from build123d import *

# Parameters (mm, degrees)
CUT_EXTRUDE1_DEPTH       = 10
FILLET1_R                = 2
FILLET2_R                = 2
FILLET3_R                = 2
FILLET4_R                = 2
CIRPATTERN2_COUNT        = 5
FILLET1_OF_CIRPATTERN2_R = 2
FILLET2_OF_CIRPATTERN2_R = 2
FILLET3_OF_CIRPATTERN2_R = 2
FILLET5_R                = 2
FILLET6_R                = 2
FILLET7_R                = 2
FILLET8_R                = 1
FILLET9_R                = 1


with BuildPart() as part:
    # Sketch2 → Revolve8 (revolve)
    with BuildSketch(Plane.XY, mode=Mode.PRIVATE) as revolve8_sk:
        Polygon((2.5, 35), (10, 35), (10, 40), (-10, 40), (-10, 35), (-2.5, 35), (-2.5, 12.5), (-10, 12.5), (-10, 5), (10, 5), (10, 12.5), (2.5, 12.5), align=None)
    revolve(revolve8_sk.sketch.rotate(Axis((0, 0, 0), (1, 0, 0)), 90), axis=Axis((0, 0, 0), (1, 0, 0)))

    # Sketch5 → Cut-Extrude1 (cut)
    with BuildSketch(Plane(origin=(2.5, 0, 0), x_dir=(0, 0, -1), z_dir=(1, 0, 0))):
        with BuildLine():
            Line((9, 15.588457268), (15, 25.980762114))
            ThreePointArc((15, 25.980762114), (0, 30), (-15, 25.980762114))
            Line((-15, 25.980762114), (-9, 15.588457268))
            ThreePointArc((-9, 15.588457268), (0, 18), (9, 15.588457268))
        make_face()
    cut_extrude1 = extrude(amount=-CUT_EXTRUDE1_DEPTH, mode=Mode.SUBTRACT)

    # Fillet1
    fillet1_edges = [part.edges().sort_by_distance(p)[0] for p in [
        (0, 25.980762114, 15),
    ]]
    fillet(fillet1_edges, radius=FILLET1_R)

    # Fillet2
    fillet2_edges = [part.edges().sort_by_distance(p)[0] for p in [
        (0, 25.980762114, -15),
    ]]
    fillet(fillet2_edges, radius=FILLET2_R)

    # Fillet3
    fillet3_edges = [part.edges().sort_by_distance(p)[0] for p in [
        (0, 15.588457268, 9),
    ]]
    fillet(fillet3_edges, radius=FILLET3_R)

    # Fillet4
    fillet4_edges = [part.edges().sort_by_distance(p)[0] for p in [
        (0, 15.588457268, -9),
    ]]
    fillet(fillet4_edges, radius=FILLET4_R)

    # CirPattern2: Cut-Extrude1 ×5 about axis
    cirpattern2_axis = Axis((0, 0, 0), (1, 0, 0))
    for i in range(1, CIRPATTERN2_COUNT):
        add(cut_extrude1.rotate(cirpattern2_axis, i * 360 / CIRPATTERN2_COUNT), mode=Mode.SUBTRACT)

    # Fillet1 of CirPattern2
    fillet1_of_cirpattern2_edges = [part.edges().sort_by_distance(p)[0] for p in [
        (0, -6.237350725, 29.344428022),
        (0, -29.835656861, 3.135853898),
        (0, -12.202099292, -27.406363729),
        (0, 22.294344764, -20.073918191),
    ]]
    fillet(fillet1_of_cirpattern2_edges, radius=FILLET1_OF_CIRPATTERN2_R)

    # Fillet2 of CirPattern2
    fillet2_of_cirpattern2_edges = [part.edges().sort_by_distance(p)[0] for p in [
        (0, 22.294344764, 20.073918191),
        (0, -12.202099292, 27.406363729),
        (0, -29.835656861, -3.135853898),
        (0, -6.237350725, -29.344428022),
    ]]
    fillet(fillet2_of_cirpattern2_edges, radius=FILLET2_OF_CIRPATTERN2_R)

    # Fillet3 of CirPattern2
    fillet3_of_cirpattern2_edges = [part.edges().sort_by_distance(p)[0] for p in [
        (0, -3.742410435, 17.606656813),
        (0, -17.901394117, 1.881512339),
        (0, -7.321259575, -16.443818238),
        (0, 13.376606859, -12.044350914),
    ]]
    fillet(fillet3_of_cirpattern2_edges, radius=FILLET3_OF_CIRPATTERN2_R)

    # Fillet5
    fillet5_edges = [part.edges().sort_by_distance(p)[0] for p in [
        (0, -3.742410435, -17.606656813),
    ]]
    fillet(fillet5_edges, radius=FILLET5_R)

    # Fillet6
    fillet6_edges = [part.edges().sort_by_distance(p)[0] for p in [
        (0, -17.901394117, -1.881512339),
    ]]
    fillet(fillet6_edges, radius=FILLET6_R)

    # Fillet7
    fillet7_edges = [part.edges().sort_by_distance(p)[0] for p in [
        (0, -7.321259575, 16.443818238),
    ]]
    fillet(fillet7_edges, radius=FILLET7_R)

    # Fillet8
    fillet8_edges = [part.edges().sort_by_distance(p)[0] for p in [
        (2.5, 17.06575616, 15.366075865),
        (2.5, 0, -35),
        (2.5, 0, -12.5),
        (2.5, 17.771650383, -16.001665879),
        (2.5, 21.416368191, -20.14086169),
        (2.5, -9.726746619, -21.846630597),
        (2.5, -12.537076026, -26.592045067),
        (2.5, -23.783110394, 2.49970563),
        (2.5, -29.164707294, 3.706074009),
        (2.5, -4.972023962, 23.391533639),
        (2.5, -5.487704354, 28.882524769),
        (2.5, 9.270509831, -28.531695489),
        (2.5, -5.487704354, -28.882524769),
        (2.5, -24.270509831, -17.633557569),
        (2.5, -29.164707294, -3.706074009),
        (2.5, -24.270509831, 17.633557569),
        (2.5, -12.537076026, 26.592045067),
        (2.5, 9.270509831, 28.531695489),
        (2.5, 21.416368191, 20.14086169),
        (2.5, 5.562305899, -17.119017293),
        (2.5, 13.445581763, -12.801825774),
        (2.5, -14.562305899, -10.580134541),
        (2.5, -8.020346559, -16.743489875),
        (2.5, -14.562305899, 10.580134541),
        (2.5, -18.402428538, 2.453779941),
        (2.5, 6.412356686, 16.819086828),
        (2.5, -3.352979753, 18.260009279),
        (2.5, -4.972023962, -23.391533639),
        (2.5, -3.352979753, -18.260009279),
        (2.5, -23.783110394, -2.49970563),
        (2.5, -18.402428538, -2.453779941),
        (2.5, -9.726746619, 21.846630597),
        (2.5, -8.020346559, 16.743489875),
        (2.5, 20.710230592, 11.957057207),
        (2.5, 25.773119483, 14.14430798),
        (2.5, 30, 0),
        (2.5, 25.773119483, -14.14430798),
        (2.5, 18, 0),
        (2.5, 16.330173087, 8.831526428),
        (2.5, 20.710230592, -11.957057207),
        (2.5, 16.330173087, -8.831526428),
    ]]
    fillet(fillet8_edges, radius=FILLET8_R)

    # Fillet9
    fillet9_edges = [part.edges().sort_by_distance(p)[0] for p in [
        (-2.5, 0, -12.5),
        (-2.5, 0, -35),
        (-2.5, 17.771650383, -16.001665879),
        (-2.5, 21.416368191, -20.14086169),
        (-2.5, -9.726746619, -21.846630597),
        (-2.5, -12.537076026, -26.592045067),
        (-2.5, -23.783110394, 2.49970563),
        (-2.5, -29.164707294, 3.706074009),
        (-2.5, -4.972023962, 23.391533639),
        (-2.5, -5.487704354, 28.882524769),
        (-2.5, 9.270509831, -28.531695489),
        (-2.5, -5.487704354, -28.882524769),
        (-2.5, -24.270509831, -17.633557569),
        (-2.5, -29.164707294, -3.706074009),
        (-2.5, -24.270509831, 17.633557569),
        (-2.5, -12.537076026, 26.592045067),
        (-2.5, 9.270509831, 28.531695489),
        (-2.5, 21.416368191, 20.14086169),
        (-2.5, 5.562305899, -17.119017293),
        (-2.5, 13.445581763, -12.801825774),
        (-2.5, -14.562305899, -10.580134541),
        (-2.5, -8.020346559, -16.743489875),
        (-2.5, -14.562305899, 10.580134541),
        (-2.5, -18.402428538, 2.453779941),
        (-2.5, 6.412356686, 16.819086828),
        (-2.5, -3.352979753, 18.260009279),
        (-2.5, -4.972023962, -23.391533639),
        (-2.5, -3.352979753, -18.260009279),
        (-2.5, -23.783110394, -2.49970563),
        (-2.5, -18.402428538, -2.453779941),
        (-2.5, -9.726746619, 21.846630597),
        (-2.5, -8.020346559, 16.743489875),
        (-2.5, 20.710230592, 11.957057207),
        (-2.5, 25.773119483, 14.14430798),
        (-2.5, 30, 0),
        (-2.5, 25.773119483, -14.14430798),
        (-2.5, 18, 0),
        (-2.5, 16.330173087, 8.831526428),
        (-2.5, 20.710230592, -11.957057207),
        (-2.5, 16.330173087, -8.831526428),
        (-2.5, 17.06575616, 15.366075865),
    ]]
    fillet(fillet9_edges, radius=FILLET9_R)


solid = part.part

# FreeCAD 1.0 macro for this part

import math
import FreeCAD as App
import Part
import Sketcher

V = App.Vector
Q = App.Units.Quantity


def edges_at(feature, points):
    """Names of the edges that pass closest to the given points."""
    edges = feature.Shape.Edges
    near = lambda p: min(range(len(edges)), key=lambda i: edges[i].distToShape(Part.Vertex(*p))[0])
    return sorted({f"Edge{near(p) + 1}" for p in points})

doc = App.newDocument("Part")
body = doc.addObject("PartDesign::Body", "Body")

sketch1 = body.newObject("Sketcher::SketchObject", "Sketch")
sketch1.AttachmentSupport = (doc.getObject("XY_Plane"), [""])
sketch1.MapMode = "FlatFace"
sketch1.addGeometry(Part.LineSegment(V(2, 35, 0), V(10, 35, 0)), False)
sketch1.addGeometry(Part.LineSegment(V(10, 35, 0), V(10, 40, 0)), False)
sketch1.addGeometry(Part.LineSegment(V(10, 40, 0), V(-10, 40, 0)), False)
sketch1.addGeometry(Part.LineSegment(V(-10, 40, 0), V(-10, 35, 0)), False)
sketch1.addGeometry(Part.LineSegment(V(-10, 35, 0), V(-2, 35, 0)), False)
sketch1.addGeometry(Part.LineSegment(V(-2, 35, 0), V(-2, 12, 0)), False)
sketch1.addGeometry(Part.LineSegment(V(-2, 12, 0), V(-10, 12, 0)), False)
sketch1.addGeometry(Part.LineSegment(V(-10, 12, 0), V(-10, 5, 0)), False)
sketch1.addGeometry(Part.LineSegment(V(-10, 5, 0), V(10, 5, 0)), False)
sketch1.addGeometry(Part.LineSegment(V(10, 5, 0), V(10, 12, 0)), False)
sketch1.addGeometry(Part.LineSegment(V(10, 12, 0), V(2, 12, 0)), False)
sketch1.addGeometry(Part.LineSegment(V(2, 12, 0), V(2, 35, 0)), False)
sketch1.addConstraint(Sketcher.Constraint("Coincident", 0, 2, 1, 1))
sketch1.addConstraint(Sketcher.Constraint("Coincident", 1, 2, 2, 1))
sketch1.addConstraint(Sketcher.Constraint("Coincident", 2, 2, 3, 1))
sketch1.addConstraint(Sketcher.Constraint("Coincident", 3, 2, 4, 1))
sketch1.addConstraint(Sketcher.Constraint("Coincident", 4, 2, 5, 1))
sketch1.addConstraint(Sketcher.Constraint("Coincident", 5, 2, 6, 1))
sketch1.addConstraint(Sketcher.Constraint("Coincident", 6, 2, 7, 1))
sketch1.addConstraint(Sketcher.Constraint("Coincident", 7, 2, 8, 1))
sketch1.addConstraint(Sketcher.Constraint("Coincident", 8, 2, 9, 1))
sketch1.addConstraint(Sketcher.Constraint("Coincident", 9, 2, 10, 1))
sketch1.addConstraint(Sketcher.Constraint("Coincident", 10, 2, 11, 1))
sketch1.addConstraint(Sketcher.Constraint("Coincident", 11, 2, 0, 1))
sketch1.addConstraint(Sketcher.Constraint("Horizontal", 0))
sketch1.addConstraint(Sketcher.Constraint("Vertical", 1))
sketch1.addConstraint(Sketcher.Constraint("Horizontal", 2))
sketch1.addConstraint(Sketcher.Constraint("Vertical", 3))
sketch1.addConstraint(Sketcher.Constraint("Horizontal", 4))
sketch1.addConstraint(Sketcher.Constraint("Vertical", 5))
sketch1.addConstraint(Sketcher.Constraint("Horizontal", 6))
sketch1.addConstraint(Sketcher.Constraint("Vertical", 7))
sketch1.addConstraint(Sketcher.Constraint("Horizontal", 8))
sketch1.addConstraint(Sketcher.Constraint("Vertical", 9))
sketch1.addConstraint(Sketcher.Constraint("Horizontal", 10))
sketch1.addConstraint(Sketcher.Constraint("Vertical", 11))
sketch1.addConstraint(Sketcher.Constraint("Symmetric", 0, 2, 3, 2, -2))
sketch1.addConstraint(Sketcher.Constraint("Symmetric", 6, 2, 9, 2, -2))
sketch1.addConstraint(Sketcher.Constraint("Vertical", 3, 2, 6, 2))
sketch1.addConstraint(Sketcher.Constraint("Equal", 0, 4))
sketch1.addConstraint(Sketcher.Constraint("Equal", 10, 7))
sketch1.addConstraint(Sketcher.Constraint("DistanceX", 2, 2, 2, 1, 20.0))
sketch1.addConstraint(Sketcher.Constraint("DistanceY", 1, 1, 1, 2, 5.0))
sketch1.addConstraint(Sketcher.Constraint("DistanceX", 0, 1, 0, 2, 7.5))
sketch1.addConstraint(Sketcher.Constraint("DistanceY", 5, 2, 5, 1, 22.5))
sketch1.addConstraint(Sketcher.Constraint("DistanceY", -1, 1, 0, 2, 35.0))
revolution = body.newObject("PartDesign::Revolution", "Revolution")
revolution.Profile = sketch1
revolution.ReferenceAxis = (sketch1, ["H_Axis"])
revolution.Angle = 360

sketch2 = body.newObject("Sketcher::SketchObject", "Sketch001")
sketch2.AttachmentSupport = (doc.getObject("YZ_Plane"), [""])
sketch2.MapMode = "FlatFace"
sketch2.AttachmentOffset = App.Placement(V(0, 0, 2.5), App.Rotation())
sketch2.addGeometry(Part.LineSegment(V(16, -9, 0), V(26, -15, 0)), False)
sketch2.addGeometry(Part.ArcOfCircle(Part.Circle(V(0, 0, 0), V(0, 0, 1), 30), math.radians(-30), math.radians(30)), False)
sketch2.addGeometry(Part.LineSegment(V(26, 15, 0), V(16, 9, 0)), False)
sketch2.addGeometry(Part.ArcOfCircle(Part.Circle(V(0, 0, 0), V(0, 0, 1), 18), math.radians(-30), math.radians(30)), False)
sketch2.addConstraint(Sketcher.Constraint("Coincident", 0, 2, 1, 1))
sketch2.addConstraint(Sketcher.Constraint("Coincident", 1, 2, 2, 1))
sketch2.addConstraint(Sketcher.Constraint("Coincident", 2, 2, 3, 2))
sketch2.addConstraint(Sketcher.Constraint("Coincident", 3, 1, 0, 1))
sketch2.addConstraint(Sketcher.Constraint("Coincident", 1, 3, -1, 1))
sketch2.addConstraint(Sketcher.Constraint("Coincident", 3, 3, -1, 1))
sketch2.addConstraint(Sketcher.Constraint("Vertical", 0, 2, 1, 2))
sketch2.addConstraint(Sketcher.Constraint("Vertical", 2, 2, 3, 1))
sketch2.addConstraint(Sketcher.Constraint("Radius", 1, 30.0))
sketch2.addConstraint(Sketcher.Constraint("Radius", 3, 18.0))
sketch2.addConstraint(Sketcher.Constraint("Angle", 0, Q("-30 deg")))
sketch2.addConstraint(Sketcher.Constraint("DistanceY", 0, 2, -1, 1, 15.0))
pocket1 = body.newObject("PartDesign::Pocket", "Pocket")
pocket1.Profile = sketch2
pocket1.Length = 10
doc.recompute()

fillet = body.newObject("PartDesign::Fillet", "Fillet")
fillet.Base = (pocket1, edges_at(pocket1, [(0, 25.981, 15)]))
fillet.Radius = 2
doc.recompute()

fillet2 = body.newObject("PartDesign::Fillet", "Fillet001")
fillet2.Base = (fillet, edges_at(fillet, [(0, 25.981, -15)]))
fillet2.Radius = 2
doc.recompute()

fillet3 = body.newObject("PartDesign::Fillet", "Fillet002")
fillet3.Base = (fillet2, edges_at(fillet2, [(0, 15.588, 9)]))
fillet3.Radius = 2
doc.recompute()

fillet4 = body.newObject("PartDesign::Fillet", "Fillet003")
fillet4.Base = (fillet3, edges_at(fillet3, [(0, 15.588, -9)]))
fillet4.Radius = 2
doc.recompute()

polarpattern = body.newObject("PartDesign::PolarPattern", "PolarPattern")
polarpattern.Originals = [pocket1]
polarpattern.Axis = (doc.getObject("X_Axis"), [""])
polarpattern.Angle = 360
polarpattern.Occurrences = 5
body.Tip = polarpattern
doc.recompute()

fillet5 = body.newObject("PartDesign::Fillet", "Fillet004")
fillet5.Base = (polarpattern, edges_at(polarpattern, [
    (0, -6.237, 29.344),
    (0, -29.836, 3.136),
    (0, -12.202, -27.406),
    (0, 22.294, -20.074),
]))
fillet5.Radius = 2
doc.recompute()

fillet6 = body.newObject("PartDesign::Fillet", "Fillet005")
fillet6.Base = (fillet5, edges_at(fillet5, [
    (0, 22.294, 20.074),
    (0, -12.202, 27.406),
    (0, -29.836, -3.136),
    (0, -6.237, -29.344),
]))
fillet6.Radius = 2
doc.recompute()

fillet7 = body.newObject("PartDesign::Fillet", "Fillet006")
fillet7.Base = (fillet6, edges_at(fillet6, [
    (0, -3.742, 17.607),
    (0, -17.901, 1.882),
    (0, -7.321, -16.444),
    (0, 13.377, -12.044),
]))
fillet7.Radius = 2
doc.recompute()

fillet8 = body.newObject("PartDesign::Fillet", "Fillet007")
fillet8.Base = (fillet7, edges_at(fillet7, [(0, -3.742, -17.607)]))
fillet8.Radius = 2
doc.recompute()

fillet9 = body.newObject("PartDesign::Fillet", "Fillet008")
fillet9.Base = (fillet8, edges_at(fillet8, [(0, -17.901, -1.882)]))
fillet9.Radius = 2
doc.recompute()

fillet10 = body.newObject("PartDesign::Fillet", "Fillet009")
fillet10.Base = (fillet9, edges_at(fillet9, [(0, -7.321, 16.444)]))
fillet10.Radius = 2
doc.recompute()

fillet11 = body.newObject("PartDesign::Fillet", "Fillet010")
fillet11.Base = (fillet10, edges_at(fillet10, [
    (2.5, 17.066, 15.366),
    (2.5, 0, -35),
    (2.5, 0, -12.5),
    (2.5, 17.772, -16.002),
    (2.5, 21.416, -20.141),
    (2.5, -9.727, -21.847),
    (2.5, -12.537, -26.592),
    (2.5, -23.783, 2.5),
    (2.5, -29.165, 3.706),
    (2.5, -4.972, 23.392),
    (2.5, -5.488, 28.883),
    (2.5, 9.271, -28.532),
    (2.5, -5.488, -28.883),
    (2.5, -24.271, -17.634),
    (2.5, -29.165, -3.706),
    (2.5, -24.271, 17.634),
    (2.5, -12.537, 26.592),
    (2.5, 9.271, 28.532),
    (2.5, 21.416, 20.141),
    (2.5, 5.562, -17.119),
    (2.5, 13.446, -12.802),
    (2.5, -14.562, -10.58),
    (2.5, -8.02, -16.743),
    (2.5, -14.562, 10.58),
    (2.5, -18.402, 2.454),
    (2.5, 6.412, 16.819),
    (2.5, -3.353, 18.26),
    (2.5, -4.972, -23.392),
    (2.5, -3.353, -18.26),
    (2.5, -23.783, -2.5),
    (2.5, -18.402, -2.454),
    (2.5, -9.727, 21.847),
    (2.5, -8.02, 16.743),
    (2.5, 20.71, 11.957),
    (2.5, 25.773, 14.144),
    (2.5, 30, 0),
    (2.5, 25.773, -14.144),
    (2.5, 18, 0),
    (2.5, 16.33, 8.832),
    (2.5, 20.71, -11.957),
    (2.5, 16.33, -8.832),
]))
fillet11.Radius = 1
doc.recompute()

fillet12 = body.newObject("PartDesign::Fillet", "Fillet011")
fillet12.Base = (fillet11, edges_at(fillet11, [
    (-2.5, 0, -12.5),
    (-2.5, 0, -35),
    (-2.5, 17.772, -16.002),
    (-2.5, 21.416, -20.141),
    (-2.5, -9.727, -21.847),
    (-2.5, -12.537, -26.592),
    (-2.5, -23.783, 2.5),
    (-2.5, -29.165, 3.706),
    (-2.5, -4.972, 23.392),
    (-2.5, -5.488, 28.883),
    (-2.5, 9.271, -28.532),
    (-2.5, -5.488, -28.883),
    (-2.5, -24.271, -17.634),
    (-2.5, -29.165, -3.706),
    (-2.5, -24.271, 17.634),
    (-2.5, -12.537, 26.592),
    (-2.5, 9.271, 28.532),
    (-2.5, 21.416, 20.141),
    (-2.5, 5.562, -17.119),
    (-2.5, 13.446, -12.802),
    (-2.5, -14.562, -10.58),
    (-2.5, -8.02, -16.743),
    (-2.5, -14.562, 10.58),
    (-2.5, -18.402, 2.454),
    (-2.5, 6.412, 16.819),
    (-2.5, -3.353, 18.26),
    (-2.5, -4.972, -23.392),
    (-2.5, -3.353, -18.26),
    (-2.5, -23.783, -2.5),
    (-2.5, -18.402, -2.454),
    (-2.5, -9.727, 21.847),
    (-2.5, -8.02, 16.743),
    (-2.5, 20.71, 11.957),
    (-2.5, 25.773, 14.144),
    (-2.5, 30, 0),
    (-2.5, 25.773, -14.144),
    (-2.5, 18, 0),
    (-2.5, 16.33, 8.832),
    (-2.5, 20.71, -11.957),
    (-2.5, 16.33, -8.832),
    (-2.5, 17.066, 15.366),
]))
fillet12.Radius = 1

doc.recompute()
